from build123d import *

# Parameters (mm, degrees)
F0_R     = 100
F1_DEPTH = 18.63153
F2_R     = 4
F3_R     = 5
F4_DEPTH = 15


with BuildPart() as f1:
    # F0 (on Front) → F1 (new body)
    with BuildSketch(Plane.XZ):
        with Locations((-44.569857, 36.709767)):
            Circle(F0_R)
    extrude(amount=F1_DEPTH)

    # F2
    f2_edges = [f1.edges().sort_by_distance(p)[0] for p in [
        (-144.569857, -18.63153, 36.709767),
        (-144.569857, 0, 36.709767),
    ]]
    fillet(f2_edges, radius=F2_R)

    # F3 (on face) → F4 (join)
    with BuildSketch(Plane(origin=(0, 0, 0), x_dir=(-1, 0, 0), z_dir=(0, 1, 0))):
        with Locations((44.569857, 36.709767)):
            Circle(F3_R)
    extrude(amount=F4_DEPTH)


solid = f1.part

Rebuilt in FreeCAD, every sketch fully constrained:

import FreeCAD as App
import Part
import Sketcher
from FreeCAD import Vector


def edges_at(feature, points):
    """Names of the edges that pass closest to the given points."""
    edges = feature.Shape.Edges
    near = lambda p: min(range(len(edges)), key=lambda i: edges[i].distToShape(Part.Vertex(*p))[0])
    return sorted({f"Edge{near(p) + 1}" for p in points})

doc = App.newDocument("Part")
body = doc.addObject("PartDesign::Body", "Body")

# Sketch on XZ plane
sketch1 = doc.addObject("Sketcher::SketchObject", "Sketch")
body.addObject(sketch1)
sketch1.AttachmentSupport = (doc.XZ_Plane, [""])
sketch1.MapMode = "FlatFace"
sketch1.addGeometry(Part.Circle(Vector(-45, 37, 0), Vector(0, 0, 1), 100), False)
sketch1.addConstraint(Sketcher.Constraint("Diameter", 0, 200.0))
sketch1.addConstraint(Sketcher.Constraint("DistanceX", 0, 3, -1, 1, 44.569857))
sketch1.addConstraint(Sketcher.Constraint("DistanceY", -1, 1, 0, 3, 36.709767))
pad1 = doc.addObject("PartDesign::Pad", "Pad")
body.addObject(pad1)
pad1.Profile = sketch1
pad1.Length = 18.63153
doc.recompute()

fillet = doc.addObject("PartDesign::Fillet", "Fillet")
body.addObject(fillet)
fillet.Base = (pad1, edges_at(pad1, [(-144.57, -18.632, 36.71), (-144.57, 0, 36.71)]))
fillet.Radius = 4

# Sketch on XZ plane
sketch2 = doc.addObject("Sketcher::SketchObject", "Sketch001")
body.addObject(sketch2)
sketch2.AttachmentSupport = (doc.XZ_Plane, [""])
sketch2.MapMode = "FlatFace"
sketch2.addGeometry(Part.Circle(Vector(-45, 37, 0), Vector(0, 0, 1), 5), False)
sketch2.addConstraint(Sketcher.Constraint("Diameter", 0, 10.0))
sketch2.addConstraint(Sketcher.Constraint("DistanceX", 0, 3, -1, 1, 44.569857))
sketch2.addConstraint(Sketcher.Constraint("DistanceY", -1, 1, 0, 3, 36.709767))
pad2 = doc.addObject("PartDesign::Pad", "Pad001")
body.addObject(pad2)
pad2.Profile = sketch2
pad2.Length = 15
pad2.Reversed = True

doc.recompute()
